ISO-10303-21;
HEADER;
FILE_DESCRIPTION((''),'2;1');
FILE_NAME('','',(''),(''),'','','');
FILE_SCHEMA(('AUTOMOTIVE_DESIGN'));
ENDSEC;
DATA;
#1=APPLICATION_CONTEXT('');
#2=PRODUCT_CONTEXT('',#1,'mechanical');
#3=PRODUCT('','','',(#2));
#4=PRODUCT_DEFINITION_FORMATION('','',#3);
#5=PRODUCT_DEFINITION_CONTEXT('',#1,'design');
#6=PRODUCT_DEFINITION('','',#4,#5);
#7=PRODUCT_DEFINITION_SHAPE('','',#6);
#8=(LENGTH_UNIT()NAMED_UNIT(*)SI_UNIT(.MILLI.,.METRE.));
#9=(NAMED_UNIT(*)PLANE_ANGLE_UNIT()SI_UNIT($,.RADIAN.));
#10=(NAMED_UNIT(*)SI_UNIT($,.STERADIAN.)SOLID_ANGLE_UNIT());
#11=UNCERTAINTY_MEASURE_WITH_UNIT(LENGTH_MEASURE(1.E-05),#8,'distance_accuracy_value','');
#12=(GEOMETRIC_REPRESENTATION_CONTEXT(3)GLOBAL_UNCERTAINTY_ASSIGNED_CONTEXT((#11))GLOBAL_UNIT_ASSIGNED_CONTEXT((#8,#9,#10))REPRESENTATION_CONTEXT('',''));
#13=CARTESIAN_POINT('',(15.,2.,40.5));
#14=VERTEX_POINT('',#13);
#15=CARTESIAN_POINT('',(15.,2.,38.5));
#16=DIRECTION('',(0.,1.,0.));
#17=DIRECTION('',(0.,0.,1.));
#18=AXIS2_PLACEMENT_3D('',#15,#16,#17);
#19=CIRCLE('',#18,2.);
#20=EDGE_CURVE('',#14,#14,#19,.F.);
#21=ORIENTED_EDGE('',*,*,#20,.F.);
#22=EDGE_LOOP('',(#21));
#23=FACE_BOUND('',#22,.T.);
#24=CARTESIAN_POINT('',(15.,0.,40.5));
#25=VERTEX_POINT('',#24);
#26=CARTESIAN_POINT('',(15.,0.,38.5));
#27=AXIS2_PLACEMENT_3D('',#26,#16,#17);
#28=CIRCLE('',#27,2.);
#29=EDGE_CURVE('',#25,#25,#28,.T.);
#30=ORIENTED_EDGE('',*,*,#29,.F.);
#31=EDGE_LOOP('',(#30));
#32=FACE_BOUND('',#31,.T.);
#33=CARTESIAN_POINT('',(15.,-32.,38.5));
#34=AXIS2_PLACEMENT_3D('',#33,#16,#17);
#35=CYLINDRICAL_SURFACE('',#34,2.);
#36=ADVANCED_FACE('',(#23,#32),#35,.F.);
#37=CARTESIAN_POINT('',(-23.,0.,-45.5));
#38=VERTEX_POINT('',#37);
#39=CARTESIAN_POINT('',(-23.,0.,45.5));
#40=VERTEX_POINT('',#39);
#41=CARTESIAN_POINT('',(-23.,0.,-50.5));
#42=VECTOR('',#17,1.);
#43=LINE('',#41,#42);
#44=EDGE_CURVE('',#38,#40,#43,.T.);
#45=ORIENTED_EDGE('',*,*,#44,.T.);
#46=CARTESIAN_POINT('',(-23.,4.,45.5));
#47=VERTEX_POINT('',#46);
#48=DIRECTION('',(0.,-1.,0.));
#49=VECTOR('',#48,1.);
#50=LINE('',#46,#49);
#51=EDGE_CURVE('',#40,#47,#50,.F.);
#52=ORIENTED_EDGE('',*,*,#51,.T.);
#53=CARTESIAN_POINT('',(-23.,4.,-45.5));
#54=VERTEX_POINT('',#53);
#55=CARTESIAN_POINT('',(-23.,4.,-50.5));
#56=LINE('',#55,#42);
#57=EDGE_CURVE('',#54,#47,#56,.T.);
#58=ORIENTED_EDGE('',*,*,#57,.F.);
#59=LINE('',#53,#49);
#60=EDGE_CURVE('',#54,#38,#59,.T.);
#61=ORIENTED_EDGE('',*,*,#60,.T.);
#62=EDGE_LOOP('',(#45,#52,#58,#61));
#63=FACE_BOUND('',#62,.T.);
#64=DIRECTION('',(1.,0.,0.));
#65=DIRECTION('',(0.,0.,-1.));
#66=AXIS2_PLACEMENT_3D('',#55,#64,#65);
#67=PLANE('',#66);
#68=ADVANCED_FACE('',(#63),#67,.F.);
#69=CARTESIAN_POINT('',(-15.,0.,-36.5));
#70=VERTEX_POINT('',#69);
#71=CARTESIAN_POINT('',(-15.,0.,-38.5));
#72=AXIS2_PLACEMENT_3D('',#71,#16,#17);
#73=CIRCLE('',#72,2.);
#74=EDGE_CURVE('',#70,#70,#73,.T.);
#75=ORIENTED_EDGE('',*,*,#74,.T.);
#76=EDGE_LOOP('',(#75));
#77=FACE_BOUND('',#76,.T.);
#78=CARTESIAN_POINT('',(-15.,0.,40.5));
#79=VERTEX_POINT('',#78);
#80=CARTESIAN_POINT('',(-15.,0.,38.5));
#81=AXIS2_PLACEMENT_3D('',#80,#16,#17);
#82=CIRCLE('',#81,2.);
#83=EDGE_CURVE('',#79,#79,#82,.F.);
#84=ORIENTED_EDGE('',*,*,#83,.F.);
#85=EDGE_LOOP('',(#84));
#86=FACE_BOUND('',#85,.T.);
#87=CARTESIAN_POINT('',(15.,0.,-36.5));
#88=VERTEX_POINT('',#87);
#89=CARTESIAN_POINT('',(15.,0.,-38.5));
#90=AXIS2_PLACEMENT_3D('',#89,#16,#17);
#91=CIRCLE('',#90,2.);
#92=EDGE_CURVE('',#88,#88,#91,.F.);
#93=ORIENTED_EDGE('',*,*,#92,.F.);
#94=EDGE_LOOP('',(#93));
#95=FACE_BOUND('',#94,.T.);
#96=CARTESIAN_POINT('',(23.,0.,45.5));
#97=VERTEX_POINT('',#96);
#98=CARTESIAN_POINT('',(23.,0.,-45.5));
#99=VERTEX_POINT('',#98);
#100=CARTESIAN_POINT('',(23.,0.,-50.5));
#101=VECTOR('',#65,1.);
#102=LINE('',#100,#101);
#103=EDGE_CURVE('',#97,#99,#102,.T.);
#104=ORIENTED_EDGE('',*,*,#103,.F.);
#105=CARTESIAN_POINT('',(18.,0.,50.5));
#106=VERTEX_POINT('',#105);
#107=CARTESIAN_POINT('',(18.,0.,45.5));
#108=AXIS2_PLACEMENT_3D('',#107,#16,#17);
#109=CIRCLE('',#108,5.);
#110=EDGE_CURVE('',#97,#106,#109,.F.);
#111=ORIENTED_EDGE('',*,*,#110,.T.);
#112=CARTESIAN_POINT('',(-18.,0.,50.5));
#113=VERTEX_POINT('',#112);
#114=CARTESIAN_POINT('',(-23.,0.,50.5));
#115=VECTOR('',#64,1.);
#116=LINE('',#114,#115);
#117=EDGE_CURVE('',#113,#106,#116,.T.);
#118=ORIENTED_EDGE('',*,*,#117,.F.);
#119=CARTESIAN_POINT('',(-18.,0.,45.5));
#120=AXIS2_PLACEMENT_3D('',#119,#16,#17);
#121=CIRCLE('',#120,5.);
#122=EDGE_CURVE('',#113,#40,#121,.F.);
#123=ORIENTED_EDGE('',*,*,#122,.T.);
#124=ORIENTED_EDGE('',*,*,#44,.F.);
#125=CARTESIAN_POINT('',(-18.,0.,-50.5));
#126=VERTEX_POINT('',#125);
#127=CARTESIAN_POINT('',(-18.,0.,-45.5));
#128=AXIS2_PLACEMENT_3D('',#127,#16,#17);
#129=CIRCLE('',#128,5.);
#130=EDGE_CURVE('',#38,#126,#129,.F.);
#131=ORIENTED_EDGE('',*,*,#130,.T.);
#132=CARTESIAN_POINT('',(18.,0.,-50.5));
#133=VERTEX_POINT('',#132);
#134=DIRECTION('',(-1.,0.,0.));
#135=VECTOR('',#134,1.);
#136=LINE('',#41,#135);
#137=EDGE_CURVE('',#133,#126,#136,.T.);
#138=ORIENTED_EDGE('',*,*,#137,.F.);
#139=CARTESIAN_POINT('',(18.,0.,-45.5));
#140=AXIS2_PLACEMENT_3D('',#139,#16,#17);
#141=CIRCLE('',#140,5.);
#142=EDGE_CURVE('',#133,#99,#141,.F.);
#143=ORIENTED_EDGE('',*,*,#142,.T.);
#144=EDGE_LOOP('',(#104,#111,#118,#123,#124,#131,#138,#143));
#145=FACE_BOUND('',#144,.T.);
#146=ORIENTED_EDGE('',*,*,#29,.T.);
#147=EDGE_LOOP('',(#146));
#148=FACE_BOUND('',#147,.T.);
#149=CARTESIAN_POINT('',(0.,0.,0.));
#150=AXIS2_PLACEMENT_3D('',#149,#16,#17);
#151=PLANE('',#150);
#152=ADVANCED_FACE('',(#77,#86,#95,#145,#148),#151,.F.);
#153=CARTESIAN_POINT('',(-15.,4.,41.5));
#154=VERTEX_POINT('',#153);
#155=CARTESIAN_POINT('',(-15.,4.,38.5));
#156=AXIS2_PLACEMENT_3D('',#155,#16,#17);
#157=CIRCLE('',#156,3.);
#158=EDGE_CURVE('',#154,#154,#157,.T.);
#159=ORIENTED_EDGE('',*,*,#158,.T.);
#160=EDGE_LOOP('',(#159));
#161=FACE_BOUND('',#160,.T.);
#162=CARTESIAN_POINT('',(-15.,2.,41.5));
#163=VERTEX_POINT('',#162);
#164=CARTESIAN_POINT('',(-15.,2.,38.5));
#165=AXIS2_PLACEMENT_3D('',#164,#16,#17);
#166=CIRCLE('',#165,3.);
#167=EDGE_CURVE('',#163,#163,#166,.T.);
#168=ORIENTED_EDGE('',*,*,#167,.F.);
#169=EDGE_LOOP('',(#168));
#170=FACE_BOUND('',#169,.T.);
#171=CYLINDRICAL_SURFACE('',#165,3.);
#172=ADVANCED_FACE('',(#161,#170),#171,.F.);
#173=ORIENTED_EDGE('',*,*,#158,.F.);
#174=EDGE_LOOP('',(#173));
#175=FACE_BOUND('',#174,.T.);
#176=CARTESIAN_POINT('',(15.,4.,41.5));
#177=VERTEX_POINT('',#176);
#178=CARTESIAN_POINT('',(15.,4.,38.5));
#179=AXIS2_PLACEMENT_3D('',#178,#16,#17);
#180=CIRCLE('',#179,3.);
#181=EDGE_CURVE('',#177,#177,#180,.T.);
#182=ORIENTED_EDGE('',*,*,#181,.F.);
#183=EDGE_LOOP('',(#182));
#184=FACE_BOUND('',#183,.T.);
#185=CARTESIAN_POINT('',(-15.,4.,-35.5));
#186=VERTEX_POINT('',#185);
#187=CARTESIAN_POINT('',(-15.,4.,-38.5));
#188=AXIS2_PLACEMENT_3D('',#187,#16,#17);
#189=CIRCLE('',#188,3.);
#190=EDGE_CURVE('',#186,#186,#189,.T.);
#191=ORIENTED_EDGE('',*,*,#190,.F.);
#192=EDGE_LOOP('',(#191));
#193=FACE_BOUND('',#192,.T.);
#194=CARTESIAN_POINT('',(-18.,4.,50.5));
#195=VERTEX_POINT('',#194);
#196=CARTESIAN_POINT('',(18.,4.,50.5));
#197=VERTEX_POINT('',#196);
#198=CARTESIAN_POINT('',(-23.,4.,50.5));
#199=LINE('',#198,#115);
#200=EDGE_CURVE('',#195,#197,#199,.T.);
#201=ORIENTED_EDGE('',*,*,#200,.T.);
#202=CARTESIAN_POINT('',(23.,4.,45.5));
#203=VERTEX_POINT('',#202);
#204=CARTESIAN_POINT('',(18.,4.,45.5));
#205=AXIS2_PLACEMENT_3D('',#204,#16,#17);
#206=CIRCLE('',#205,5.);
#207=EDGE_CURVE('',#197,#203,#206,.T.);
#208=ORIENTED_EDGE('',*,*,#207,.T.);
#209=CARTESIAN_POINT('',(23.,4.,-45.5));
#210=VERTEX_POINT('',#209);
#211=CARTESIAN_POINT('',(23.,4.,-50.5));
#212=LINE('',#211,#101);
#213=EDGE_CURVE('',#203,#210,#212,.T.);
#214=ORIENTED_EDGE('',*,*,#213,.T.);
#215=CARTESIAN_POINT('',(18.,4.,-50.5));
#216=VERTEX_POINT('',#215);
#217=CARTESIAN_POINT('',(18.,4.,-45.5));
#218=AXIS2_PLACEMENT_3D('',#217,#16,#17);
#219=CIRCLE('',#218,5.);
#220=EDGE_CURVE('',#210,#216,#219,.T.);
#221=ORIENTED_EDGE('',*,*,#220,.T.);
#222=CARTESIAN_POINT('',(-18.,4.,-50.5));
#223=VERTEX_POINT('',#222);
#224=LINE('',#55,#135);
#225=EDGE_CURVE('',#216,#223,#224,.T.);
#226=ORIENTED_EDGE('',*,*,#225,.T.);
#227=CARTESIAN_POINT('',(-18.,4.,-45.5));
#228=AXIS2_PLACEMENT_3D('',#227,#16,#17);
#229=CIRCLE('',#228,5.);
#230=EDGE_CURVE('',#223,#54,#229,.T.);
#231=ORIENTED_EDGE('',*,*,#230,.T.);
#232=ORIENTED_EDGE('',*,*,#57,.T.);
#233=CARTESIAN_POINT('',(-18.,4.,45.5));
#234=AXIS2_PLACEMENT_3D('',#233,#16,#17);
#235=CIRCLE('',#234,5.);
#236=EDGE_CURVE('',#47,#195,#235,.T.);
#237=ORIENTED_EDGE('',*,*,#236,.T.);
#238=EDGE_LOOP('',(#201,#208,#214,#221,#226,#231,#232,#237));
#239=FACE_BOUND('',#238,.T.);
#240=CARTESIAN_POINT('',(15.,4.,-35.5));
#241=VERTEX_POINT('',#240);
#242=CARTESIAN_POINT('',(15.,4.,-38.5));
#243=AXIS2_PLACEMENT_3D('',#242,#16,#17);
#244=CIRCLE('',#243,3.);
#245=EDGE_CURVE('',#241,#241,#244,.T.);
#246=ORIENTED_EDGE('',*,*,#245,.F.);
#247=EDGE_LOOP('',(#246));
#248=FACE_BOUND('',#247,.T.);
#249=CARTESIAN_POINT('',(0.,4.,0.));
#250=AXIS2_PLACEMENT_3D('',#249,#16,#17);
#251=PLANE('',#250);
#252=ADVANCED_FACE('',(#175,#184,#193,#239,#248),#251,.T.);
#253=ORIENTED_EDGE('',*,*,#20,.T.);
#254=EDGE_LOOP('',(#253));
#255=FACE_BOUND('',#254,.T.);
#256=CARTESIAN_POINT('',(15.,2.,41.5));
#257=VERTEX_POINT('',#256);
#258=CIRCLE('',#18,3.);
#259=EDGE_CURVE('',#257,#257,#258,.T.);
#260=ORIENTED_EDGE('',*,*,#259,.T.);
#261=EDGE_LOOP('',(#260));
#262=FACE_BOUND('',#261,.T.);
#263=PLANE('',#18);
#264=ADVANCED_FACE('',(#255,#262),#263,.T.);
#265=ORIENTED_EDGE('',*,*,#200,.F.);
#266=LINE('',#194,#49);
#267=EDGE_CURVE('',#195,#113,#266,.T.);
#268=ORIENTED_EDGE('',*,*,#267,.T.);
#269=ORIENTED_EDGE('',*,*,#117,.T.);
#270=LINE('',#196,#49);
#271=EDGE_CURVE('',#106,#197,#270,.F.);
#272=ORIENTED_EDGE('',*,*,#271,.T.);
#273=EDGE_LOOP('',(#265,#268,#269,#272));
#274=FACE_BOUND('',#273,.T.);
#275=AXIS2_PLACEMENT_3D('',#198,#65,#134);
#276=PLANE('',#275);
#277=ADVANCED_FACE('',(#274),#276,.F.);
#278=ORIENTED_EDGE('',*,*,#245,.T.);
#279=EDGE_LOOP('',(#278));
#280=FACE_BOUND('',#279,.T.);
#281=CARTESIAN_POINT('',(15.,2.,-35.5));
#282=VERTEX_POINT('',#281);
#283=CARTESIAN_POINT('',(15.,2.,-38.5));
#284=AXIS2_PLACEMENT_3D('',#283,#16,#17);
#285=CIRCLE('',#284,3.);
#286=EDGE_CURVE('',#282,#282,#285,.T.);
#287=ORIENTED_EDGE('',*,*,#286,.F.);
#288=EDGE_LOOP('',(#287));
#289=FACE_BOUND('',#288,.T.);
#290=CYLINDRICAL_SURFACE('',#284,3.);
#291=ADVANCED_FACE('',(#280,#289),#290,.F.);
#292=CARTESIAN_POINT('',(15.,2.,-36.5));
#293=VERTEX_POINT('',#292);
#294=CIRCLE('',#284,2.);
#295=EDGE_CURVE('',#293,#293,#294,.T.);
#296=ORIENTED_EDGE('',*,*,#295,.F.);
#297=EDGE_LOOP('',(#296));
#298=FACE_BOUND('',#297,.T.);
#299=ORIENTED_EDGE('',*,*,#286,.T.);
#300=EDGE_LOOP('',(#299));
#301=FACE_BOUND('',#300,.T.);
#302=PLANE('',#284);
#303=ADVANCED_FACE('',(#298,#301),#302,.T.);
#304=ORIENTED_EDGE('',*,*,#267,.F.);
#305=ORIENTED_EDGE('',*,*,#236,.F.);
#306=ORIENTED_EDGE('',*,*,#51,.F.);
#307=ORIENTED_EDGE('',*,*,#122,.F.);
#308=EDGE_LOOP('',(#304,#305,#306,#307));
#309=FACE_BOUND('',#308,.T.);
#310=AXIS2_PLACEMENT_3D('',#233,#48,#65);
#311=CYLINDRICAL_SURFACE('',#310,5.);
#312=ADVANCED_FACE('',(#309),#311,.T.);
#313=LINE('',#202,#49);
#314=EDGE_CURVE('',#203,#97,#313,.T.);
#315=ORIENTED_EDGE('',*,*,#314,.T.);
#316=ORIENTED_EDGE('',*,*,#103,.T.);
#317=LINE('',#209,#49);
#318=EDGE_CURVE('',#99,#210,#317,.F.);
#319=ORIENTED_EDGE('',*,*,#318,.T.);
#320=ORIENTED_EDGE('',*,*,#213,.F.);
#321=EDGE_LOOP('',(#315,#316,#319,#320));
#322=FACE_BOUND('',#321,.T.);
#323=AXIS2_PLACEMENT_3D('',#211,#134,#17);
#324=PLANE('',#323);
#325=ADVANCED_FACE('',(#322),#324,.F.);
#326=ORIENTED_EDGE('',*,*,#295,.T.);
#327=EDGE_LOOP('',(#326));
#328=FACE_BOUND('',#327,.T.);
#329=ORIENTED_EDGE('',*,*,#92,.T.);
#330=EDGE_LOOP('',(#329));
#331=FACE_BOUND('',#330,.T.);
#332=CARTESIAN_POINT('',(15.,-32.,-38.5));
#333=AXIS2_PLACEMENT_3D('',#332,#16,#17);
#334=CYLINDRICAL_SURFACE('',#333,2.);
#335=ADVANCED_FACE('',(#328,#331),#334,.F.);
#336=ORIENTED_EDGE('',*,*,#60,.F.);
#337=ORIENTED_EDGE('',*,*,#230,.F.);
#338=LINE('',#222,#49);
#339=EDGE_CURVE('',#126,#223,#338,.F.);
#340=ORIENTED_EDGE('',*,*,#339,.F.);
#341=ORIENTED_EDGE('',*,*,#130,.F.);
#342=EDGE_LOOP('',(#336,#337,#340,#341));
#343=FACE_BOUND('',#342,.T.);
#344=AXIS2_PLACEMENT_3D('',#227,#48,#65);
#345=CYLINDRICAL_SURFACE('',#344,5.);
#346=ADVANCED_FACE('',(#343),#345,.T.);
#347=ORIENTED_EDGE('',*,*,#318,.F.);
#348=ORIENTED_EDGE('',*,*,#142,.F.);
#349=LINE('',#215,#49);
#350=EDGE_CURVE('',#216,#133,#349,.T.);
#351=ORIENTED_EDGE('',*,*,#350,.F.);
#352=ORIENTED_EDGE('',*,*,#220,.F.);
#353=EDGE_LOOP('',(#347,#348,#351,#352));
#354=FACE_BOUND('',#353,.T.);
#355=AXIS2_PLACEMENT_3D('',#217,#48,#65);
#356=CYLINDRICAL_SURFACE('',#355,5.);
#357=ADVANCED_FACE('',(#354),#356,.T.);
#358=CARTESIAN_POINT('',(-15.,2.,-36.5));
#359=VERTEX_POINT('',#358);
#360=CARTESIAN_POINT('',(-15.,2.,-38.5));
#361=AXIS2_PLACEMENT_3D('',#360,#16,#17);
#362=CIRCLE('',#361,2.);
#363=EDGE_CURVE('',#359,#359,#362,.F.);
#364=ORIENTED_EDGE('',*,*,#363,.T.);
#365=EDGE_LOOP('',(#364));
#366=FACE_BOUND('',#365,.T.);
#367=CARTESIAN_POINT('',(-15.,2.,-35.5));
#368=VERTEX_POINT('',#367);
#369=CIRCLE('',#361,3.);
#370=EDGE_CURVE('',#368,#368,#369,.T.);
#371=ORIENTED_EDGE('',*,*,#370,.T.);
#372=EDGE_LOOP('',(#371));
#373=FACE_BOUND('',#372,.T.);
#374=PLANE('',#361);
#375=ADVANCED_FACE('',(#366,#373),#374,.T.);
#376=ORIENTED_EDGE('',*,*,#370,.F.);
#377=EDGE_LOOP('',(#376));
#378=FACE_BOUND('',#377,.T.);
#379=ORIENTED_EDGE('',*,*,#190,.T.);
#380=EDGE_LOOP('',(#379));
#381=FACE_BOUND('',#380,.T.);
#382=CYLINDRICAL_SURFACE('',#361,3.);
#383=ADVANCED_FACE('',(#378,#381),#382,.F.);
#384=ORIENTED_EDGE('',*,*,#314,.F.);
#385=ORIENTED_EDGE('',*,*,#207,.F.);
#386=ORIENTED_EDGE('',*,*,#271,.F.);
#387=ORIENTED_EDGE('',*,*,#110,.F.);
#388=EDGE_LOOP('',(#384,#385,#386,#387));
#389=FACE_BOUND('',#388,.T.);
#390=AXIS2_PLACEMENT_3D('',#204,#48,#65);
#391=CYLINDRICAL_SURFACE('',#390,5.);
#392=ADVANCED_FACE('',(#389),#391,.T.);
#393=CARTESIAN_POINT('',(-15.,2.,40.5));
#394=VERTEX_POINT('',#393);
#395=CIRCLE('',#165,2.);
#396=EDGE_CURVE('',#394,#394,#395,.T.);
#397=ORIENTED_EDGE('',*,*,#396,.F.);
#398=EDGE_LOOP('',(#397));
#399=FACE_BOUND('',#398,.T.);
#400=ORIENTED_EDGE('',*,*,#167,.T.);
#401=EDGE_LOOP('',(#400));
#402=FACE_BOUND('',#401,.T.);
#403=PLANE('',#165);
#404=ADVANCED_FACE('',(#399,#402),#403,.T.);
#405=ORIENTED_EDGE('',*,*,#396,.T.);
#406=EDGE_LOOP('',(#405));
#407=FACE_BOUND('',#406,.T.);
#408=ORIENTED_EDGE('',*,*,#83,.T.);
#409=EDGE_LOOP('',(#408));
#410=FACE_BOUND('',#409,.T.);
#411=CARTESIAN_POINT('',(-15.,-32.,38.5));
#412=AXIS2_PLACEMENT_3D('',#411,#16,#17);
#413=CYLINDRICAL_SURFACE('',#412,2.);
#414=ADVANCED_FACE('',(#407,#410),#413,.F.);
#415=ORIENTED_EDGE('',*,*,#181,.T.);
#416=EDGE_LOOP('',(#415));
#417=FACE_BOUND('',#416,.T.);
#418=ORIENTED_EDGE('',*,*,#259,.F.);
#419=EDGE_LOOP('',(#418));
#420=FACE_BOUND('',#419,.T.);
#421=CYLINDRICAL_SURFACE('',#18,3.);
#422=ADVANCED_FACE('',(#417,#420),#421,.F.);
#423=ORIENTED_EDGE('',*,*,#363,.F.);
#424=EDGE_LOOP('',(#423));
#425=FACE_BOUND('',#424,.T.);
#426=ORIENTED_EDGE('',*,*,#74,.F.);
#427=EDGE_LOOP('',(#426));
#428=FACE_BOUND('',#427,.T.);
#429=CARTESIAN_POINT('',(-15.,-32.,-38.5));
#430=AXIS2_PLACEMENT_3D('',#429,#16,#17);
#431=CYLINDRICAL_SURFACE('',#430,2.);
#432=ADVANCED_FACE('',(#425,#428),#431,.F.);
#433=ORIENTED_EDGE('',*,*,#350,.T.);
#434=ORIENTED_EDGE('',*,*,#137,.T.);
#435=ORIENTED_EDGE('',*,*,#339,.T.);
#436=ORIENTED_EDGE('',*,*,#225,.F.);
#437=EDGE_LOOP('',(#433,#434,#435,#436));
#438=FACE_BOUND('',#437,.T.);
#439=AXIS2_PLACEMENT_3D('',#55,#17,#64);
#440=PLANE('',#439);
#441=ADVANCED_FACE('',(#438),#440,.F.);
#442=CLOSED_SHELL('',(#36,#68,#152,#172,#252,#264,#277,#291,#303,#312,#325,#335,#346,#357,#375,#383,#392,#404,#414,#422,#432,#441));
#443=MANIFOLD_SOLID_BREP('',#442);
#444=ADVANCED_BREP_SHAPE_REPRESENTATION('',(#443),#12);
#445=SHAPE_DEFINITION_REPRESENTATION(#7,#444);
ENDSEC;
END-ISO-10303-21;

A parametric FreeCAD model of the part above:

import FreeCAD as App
import Part
import Sketcher

V = App.Vector
Q = App.Units.Quantity


def edges_at(feature, points):
    """Names of the edges that pass closest to the given points."""
    edges = feature.Shape.Edges
    near = lambda p: min(range(len(edges)), key=lambda i: edges[i].distToShape(Part.Vertex(*p))[0])
    return sorted({f"Edge{near(p) + 1}" for p in points})

doc = App.newDocument("Part")
body = doc.addObject("PartDesign::Body", "Body")

# Sketch on XZ plane
sketch1 = doc.addObject("Sketcher::SketchObject", "Sketch")
body.addObject(sketch1)
sketch1.AttachmentSupport = (doc.XZ_Plane, [""])
sketch1.MapMode = "FlatFace"
sketch1.addGeometry([
    Part.LineSegment(V(-23, -50, 0), V(-23, 50, 0)),
    Part.LineSegment(V(-23, 50, 0), V(23, 50, 0)),
    Part.LineSegment(V(23, 50, 0), V(23, -50, 0)),
    Part.LineSegment(V(23, -50, 0), V(-23, -50, 0)),
], False)
sketch1.addConstraint([
    Sketcher.Constraint("Coincident", 0, 2, 1, 1),
    Sketcher.Constraint("Coincident", 1, 2, 2, 1),
    Sketcher.Constraint("Coincident", 2, 2, 3, 1),
    Sketcher.Constraint("Coincident", 3, 2, 0, 1),
    Sketcher.Constraint("Vertical", 0),
    Sketcher.Constraint("Horizontal", 1),
    Sketcher.Constraint("Vertical", 2),
    Sketcher.Constraint("Horizontal", 3),
    Sketcher.Constraint("Symmetric", 0, 2, 2, 2, -1, 1),
    Sketcher.Constraint("DistanceX", 1, 1, 1, 2, Q("46 mm")),
    Sketcher.Constraint("DistanceY", 0, 1, 0, 2, Q("101 mm")),
])
pad1 = doc.addObject("PartDesign::Pad", "Pad")
body.addObject(pad1)
pad1.Profile = sketch1
pad1.Length = 4
pad1.Reversed = True

# Sketch on XZ plane
sketch2 = doc.addObject("Sketcher::SketchObject", "Sketch001")
body.addObject(sketch2)
sketch2.AttachmentSupport = (doc.XZ_Plane, [""])
sketch2.MapMode = "FlatFace"
sketch2.AttachmentOffset = App.Placement(V(0, 0, -4), App.Rotation())
sketch2.addGeometry([
    Part.Circle(V(-15, -38.5, 0), V(0, 0, 1), 2),
    Part.Circle(V(15, -38.5, 0), V(0, 0, 1), 2),
    Part.Circle(V(-15, 38.5, 0), V(0, 0, 1), 2),
    Part.Circle(V(15, 38.5, 0), V(0, 0, 1), 2),
], False)
sketch2.addConstraint([
    Sketcher.Constraint("Equal", 0, 1),
    Sketcher.Constraint("Equal", 1, 2),
    Sketcher.Constraint("Equal", 2, 3),
    Sketcher.Constraint("Symmetric", 1, 3, 2, 3, -1, 1),
    Sketcher.Constraint("Symmetric", 0, 3, 3, 3, -1, 1),
    Sketcher.Constraint("Symmetric", 0, 3, 1, 3, -2),
    Sketcher.Constraint("Diameter", 0, Q("4 mm")),
    Sketcher.Constraint("DistanceX", 0, 3, -1, 1, Q("15 mm")),
    Sketcher.Constraint("DistanceY", 0, 3, 2, 3, Q("77 mm")),
])
pocket1 = doc.addObject("PartDesign::Pocket", "Pocket")
body.addObject(pocket1)
pocket1.Profile = sketch2
pocket1.Length = 36
pocket1.Reversed = True

# Sketch on XZ plane
sketch3 = doc.addObject("Sketcher::SketchObject", "Sketch002")
body.addObject(sketch3)
sketch3.AttachmentSupport = (doc.XZ_Plane, [""])
sketch3.MapMode = "FlatFace"
sketch3.AttachmentOffset = App.Placement(V(0, 0, -4), App.Rotation())
sketch3.addGeometry([
    Part.Circle(V(-15, 38.5, 0), V(0, 0, 1), 3),
    Part.Circle(V(15, 38.5, 0), V(0, 0, 1), 3),
    Part.Circle(V(-15, -38.5, 0), V(0, 0, 1), 3),
    Part.Circle(V(15, -38.5, 0), V(0, 0, 1), 3),
], False)
sketch3.addConstraint([
    Sketcher.Constraint("Equal", 0, 1),
    Sketcher.Constraint("Equal", 1, 2),
    Sketcher.Constraint("Equal", 2, 3),
    Sketcher.Constraint("Symmetric", 1, 3, 2, 3, -1, 1),
    Sketcher.Constraint("Symmetric", 0, 3, 3, 3, -1, 1),
    Sketcher.Constraint("Symmetric", 0, 3, 1, 3, -2),
    Sketcher.Constraint("Diameter", 0, Q("6 mm")),
    Sketcher.Constraint("DistanceX", 0, 3, -1, 1, Q("15 mm")),
    Sketcher.Constraint("DistanceY", 2, 3, 0, 3, Q("77 mm")),
])
pocket2 = doc.addObject("PartDesign::Pocket", "Pocket001")
body.addObject(pocket2)
pocket2.Profile = sketch3
pocket2.Length = 2
pocket2.Reversed = True
doc.recompute()

fillet = doc.addObject("PartDesign::Fillet", "Fillet")
body.addObject(fillet)
fillet.Base = (pocket2, edges_at(pocket2, [
    (23, 2, 50.5),
    (-23, 2, 50.5),
    (-23, 2, -50.5),
    (23, 2, -50.5),
]))
fillet.Radius = 5

doc.recompute()
